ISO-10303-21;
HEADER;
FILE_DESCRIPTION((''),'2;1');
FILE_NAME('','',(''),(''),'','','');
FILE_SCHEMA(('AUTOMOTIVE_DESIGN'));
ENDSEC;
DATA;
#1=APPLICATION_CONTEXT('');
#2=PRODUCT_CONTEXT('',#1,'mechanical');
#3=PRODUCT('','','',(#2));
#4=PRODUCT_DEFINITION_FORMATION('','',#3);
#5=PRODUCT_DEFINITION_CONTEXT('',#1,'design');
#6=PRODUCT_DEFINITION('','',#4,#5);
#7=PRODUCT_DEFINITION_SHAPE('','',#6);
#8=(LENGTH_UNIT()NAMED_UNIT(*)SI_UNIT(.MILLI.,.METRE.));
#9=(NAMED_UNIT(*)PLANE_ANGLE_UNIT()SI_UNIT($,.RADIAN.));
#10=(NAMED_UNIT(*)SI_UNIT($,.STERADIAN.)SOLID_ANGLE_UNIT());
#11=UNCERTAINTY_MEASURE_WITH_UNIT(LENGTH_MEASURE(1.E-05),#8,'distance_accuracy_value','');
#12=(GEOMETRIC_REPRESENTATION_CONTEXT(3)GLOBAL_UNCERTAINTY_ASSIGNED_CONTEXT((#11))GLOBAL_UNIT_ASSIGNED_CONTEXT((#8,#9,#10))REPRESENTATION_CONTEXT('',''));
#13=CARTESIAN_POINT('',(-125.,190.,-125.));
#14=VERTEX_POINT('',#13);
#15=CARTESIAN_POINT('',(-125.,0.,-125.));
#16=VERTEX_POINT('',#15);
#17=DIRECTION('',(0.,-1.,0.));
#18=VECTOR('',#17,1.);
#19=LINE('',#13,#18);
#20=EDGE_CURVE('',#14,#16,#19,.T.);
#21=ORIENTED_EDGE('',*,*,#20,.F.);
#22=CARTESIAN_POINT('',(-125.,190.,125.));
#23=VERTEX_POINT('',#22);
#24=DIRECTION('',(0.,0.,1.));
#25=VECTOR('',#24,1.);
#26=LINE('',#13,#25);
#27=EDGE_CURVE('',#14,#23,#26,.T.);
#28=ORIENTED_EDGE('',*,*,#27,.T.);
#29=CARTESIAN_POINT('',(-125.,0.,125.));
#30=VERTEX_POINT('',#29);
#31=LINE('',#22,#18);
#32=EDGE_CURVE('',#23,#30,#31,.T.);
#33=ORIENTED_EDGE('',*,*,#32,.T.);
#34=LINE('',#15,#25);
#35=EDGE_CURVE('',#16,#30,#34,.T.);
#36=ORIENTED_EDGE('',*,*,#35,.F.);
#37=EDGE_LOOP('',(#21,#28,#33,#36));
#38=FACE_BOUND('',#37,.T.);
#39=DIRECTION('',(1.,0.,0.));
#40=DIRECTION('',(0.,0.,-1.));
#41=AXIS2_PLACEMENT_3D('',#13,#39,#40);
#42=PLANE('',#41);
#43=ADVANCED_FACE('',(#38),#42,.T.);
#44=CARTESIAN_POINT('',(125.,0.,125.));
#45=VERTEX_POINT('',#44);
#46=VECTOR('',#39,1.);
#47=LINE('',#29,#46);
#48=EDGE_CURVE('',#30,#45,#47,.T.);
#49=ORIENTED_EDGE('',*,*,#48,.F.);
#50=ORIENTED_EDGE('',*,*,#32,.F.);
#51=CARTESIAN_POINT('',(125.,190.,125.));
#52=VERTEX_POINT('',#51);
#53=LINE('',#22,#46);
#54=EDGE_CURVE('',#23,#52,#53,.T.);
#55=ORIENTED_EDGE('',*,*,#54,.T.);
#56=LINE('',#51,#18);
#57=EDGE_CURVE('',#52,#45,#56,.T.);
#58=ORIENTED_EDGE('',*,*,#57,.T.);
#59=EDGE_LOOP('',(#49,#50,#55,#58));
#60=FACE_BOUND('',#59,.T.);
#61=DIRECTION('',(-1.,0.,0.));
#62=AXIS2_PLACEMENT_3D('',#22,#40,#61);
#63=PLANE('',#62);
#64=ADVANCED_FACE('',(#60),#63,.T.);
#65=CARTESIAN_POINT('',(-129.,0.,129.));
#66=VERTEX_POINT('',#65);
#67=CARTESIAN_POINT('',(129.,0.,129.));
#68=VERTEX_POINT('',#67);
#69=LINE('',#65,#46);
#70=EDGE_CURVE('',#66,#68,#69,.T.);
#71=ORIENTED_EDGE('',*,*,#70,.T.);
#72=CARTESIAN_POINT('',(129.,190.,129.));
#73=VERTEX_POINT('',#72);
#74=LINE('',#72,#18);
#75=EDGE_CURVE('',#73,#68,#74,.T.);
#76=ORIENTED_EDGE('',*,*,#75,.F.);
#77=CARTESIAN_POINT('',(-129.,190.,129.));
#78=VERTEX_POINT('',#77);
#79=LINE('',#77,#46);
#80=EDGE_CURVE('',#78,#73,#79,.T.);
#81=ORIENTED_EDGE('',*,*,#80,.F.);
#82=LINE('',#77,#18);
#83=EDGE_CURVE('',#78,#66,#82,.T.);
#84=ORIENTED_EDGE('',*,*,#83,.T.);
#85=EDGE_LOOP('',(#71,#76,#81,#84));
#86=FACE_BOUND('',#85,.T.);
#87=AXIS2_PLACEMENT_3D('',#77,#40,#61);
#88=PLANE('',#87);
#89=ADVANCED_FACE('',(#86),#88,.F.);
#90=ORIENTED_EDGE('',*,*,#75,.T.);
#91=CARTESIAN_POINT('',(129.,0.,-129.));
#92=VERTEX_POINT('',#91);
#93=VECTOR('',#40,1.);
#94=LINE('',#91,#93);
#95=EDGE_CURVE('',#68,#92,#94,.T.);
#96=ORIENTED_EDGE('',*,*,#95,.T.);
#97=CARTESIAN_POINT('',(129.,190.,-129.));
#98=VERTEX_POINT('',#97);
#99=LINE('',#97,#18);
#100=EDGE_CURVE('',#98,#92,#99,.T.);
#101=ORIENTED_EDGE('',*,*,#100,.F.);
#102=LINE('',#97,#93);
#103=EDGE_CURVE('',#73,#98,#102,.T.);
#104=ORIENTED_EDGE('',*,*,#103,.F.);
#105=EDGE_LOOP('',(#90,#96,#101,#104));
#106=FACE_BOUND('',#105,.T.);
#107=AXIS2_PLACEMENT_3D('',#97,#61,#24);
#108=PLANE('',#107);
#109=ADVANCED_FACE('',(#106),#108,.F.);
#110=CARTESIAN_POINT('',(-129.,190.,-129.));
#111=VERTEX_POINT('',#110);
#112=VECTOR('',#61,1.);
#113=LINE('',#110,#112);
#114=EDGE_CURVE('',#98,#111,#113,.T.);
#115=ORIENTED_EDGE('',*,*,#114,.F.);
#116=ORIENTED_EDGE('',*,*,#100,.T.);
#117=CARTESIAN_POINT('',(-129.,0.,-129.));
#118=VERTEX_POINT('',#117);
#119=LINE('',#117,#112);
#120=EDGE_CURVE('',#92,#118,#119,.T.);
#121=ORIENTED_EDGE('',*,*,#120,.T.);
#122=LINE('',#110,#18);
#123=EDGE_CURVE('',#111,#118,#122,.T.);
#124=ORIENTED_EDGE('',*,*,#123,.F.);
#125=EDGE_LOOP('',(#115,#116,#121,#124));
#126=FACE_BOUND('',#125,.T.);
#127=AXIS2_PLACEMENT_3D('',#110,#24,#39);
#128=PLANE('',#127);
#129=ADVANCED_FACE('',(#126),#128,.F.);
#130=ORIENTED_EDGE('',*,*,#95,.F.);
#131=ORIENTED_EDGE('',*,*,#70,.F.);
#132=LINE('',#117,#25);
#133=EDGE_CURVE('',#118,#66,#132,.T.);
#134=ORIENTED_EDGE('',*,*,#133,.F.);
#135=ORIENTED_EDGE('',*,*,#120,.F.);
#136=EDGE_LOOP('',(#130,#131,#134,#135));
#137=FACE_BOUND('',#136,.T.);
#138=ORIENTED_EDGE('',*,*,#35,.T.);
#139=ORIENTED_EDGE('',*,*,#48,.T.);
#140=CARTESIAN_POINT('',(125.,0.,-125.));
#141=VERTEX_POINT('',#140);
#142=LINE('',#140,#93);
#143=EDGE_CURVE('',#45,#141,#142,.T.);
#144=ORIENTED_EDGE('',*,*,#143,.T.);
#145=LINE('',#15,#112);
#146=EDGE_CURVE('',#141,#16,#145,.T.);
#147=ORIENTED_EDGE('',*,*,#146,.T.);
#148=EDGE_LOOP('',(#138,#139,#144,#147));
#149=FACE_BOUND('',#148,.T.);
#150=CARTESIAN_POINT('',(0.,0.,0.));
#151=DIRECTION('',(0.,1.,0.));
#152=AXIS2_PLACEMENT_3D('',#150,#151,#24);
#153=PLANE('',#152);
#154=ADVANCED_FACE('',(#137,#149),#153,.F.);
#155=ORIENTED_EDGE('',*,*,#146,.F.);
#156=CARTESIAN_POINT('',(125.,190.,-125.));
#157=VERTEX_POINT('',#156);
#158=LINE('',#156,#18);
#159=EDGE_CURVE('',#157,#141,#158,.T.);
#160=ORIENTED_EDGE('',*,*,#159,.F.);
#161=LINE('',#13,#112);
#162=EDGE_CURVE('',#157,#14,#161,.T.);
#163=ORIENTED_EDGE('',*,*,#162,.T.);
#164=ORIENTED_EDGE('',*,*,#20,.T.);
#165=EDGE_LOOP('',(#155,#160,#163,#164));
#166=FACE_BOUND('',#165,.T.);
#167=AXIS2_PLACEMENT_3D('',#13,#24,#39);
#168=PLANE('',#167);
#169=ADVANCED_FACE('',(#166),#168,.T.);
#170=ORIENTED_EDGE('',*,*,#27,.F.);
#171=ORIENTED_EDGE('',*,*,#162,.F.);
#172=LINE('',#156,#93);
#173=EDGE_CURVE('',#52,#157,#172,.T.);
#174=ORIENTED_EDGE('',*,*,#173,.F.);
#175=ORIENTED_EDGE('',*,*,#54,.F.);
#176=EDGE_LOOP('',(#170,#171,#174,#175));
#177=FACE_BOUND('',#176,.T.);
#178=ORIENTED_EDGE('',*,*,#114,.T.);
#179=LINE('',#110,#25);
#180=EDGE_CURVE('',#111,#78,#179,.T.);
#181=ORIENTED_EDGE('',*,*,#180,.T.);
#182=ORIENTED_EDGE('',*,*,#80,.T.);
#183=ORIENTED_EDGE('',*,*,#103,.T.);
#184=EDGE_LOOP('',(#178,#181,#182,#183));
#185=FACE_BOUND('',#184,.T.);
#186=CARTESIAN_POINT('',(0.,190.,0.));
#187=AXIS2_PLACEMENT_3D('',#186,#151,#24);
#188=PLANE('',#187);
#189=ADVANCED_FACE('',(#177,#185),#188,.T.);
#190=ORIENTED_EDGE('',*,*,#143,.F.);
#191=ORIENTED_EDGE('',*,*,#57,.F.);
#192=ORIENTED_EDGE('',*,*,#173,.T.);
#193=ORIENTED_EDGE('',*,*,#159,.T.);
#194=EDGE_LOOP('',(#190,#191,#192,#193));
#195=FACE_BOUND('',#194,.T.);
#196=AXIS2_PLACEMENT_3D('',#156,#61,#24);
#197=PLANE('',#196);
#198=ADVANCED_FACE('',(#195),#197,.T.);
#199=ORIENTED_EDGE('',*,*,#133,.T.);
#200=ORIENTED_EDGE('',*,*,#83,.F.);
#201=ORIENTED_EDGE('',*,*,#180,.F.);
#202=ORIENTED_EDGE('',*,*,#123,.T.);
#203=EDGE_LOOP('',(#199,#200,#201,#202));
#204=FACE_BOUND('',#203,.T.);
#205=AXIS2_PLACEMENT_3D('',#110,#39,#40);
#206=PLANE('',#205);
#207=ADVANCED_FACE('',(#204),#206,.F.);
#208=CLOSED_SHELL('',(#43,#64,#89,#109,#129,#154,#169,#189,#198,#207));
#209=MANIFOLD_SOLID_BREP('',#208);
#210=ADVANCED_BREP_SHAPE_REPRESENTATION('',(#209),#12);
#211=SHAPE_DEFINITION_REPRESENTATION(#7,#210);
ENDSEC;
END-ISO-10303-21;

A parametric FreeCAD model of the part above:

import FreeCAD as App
import Part
import Sketcher

V = App.Vector

doc = App.newDocument("Part")
body = doc.addObject("PartDesign::Body", "Body")

# Sketch on XZ plane
sketch1 = doc.addObject("Sketcher::SketchObject", "Sketch")
body.addObject(sketch1)
sketch1.AttachmentSupport = (doc.XZ_Plane, [""])
sketch1.MapMode = "FlatFace"
sketch1.addGeometry([
    Part.LineSegment(V(-129, -129, 0), V(-129, 129, 0)),  # 0
    Part.LineSegment(V(-129, 129, 0), V(129, 129, 0)),  # 1
    Part.LineSegment(V(129, 129, 0), V(129, -129, 0)),  # 2
    Part.LineSegment(V(129, -129, 0), V(-129, -129, 0)),  # 3
    Part.LineSegment(V(125, 125, 0), V(-125, 125, 0)),  # 4
    Part.LineSegment(V(-125, 125, 0), V(-125, -125, 0)),  # 5
    Part.LineSegment(V(-125, -125, 0), V(125, -125, 0)),  # 6
    Part.LineSegment(V(125, -125, 0), V(125, 125, 0)),  # 7
], False)
sketch1.addConstraint([
    Sketcher.Constraint("Coincident", 0, 2, 1, 1),
    Sketcher.Constraint("Coincident", 1, 2, 2, 1),
    Sketcher.Constraint("Coincident", 2, 2, 3, 1),
    Sketcher.Constraint("Coincident", 3, 2, 0, 1),
    Sketcher.Constraint("Coincident", 4, 2, 5, 1),
    Sketcher.Constraint("Coincident", 5, 2, 6, 1),
    Sketcher.Constraint("Coincident", 6, 2, 7, 1),
    Sketcher.Constraint("Coincident", 7, 2, 4, 1),
    Sketcher.Constraint("Vertical", 0),
    Sketcher.Constraint("Horizontal", 1),
    Sketcher.Constraint("Vertical", 2),
    Sketcher.Constraint("Horizontal", 3),
    Sketcher.Constraint("Horizontal", 4),
    Sketcher.Constraint("Vertical", 5),
    Sketcher.Constraint("Horizontal", 6),
    Sketcher.Constraint("Vertical", 7),
    Sketcher.Constraint("Symmetric", 0, 2, 2, 2, -1, 1),
    Sketcher.Constraint("Symmetric", 4, 2, 6, 2, -1, 1),
    Sketcher.Constraint("Equal", 3, 0),
    Sketcher.Constraint("Equal", 6, 5),
    Sketcher.Constraint("DistanceX", 1, 1, 1, 2, 258.0),
    Sketcher.Constraint("DistanceX", 4, 2, 4, 1, 250.0),
])
pad1 = doc.addObject("PartDesign::Pad", "Pad")
body.addObject(pad1)
pad1.Profile = sketch1
pad1.Length = 190
pad1.Reversed = True

doc.recompute()
